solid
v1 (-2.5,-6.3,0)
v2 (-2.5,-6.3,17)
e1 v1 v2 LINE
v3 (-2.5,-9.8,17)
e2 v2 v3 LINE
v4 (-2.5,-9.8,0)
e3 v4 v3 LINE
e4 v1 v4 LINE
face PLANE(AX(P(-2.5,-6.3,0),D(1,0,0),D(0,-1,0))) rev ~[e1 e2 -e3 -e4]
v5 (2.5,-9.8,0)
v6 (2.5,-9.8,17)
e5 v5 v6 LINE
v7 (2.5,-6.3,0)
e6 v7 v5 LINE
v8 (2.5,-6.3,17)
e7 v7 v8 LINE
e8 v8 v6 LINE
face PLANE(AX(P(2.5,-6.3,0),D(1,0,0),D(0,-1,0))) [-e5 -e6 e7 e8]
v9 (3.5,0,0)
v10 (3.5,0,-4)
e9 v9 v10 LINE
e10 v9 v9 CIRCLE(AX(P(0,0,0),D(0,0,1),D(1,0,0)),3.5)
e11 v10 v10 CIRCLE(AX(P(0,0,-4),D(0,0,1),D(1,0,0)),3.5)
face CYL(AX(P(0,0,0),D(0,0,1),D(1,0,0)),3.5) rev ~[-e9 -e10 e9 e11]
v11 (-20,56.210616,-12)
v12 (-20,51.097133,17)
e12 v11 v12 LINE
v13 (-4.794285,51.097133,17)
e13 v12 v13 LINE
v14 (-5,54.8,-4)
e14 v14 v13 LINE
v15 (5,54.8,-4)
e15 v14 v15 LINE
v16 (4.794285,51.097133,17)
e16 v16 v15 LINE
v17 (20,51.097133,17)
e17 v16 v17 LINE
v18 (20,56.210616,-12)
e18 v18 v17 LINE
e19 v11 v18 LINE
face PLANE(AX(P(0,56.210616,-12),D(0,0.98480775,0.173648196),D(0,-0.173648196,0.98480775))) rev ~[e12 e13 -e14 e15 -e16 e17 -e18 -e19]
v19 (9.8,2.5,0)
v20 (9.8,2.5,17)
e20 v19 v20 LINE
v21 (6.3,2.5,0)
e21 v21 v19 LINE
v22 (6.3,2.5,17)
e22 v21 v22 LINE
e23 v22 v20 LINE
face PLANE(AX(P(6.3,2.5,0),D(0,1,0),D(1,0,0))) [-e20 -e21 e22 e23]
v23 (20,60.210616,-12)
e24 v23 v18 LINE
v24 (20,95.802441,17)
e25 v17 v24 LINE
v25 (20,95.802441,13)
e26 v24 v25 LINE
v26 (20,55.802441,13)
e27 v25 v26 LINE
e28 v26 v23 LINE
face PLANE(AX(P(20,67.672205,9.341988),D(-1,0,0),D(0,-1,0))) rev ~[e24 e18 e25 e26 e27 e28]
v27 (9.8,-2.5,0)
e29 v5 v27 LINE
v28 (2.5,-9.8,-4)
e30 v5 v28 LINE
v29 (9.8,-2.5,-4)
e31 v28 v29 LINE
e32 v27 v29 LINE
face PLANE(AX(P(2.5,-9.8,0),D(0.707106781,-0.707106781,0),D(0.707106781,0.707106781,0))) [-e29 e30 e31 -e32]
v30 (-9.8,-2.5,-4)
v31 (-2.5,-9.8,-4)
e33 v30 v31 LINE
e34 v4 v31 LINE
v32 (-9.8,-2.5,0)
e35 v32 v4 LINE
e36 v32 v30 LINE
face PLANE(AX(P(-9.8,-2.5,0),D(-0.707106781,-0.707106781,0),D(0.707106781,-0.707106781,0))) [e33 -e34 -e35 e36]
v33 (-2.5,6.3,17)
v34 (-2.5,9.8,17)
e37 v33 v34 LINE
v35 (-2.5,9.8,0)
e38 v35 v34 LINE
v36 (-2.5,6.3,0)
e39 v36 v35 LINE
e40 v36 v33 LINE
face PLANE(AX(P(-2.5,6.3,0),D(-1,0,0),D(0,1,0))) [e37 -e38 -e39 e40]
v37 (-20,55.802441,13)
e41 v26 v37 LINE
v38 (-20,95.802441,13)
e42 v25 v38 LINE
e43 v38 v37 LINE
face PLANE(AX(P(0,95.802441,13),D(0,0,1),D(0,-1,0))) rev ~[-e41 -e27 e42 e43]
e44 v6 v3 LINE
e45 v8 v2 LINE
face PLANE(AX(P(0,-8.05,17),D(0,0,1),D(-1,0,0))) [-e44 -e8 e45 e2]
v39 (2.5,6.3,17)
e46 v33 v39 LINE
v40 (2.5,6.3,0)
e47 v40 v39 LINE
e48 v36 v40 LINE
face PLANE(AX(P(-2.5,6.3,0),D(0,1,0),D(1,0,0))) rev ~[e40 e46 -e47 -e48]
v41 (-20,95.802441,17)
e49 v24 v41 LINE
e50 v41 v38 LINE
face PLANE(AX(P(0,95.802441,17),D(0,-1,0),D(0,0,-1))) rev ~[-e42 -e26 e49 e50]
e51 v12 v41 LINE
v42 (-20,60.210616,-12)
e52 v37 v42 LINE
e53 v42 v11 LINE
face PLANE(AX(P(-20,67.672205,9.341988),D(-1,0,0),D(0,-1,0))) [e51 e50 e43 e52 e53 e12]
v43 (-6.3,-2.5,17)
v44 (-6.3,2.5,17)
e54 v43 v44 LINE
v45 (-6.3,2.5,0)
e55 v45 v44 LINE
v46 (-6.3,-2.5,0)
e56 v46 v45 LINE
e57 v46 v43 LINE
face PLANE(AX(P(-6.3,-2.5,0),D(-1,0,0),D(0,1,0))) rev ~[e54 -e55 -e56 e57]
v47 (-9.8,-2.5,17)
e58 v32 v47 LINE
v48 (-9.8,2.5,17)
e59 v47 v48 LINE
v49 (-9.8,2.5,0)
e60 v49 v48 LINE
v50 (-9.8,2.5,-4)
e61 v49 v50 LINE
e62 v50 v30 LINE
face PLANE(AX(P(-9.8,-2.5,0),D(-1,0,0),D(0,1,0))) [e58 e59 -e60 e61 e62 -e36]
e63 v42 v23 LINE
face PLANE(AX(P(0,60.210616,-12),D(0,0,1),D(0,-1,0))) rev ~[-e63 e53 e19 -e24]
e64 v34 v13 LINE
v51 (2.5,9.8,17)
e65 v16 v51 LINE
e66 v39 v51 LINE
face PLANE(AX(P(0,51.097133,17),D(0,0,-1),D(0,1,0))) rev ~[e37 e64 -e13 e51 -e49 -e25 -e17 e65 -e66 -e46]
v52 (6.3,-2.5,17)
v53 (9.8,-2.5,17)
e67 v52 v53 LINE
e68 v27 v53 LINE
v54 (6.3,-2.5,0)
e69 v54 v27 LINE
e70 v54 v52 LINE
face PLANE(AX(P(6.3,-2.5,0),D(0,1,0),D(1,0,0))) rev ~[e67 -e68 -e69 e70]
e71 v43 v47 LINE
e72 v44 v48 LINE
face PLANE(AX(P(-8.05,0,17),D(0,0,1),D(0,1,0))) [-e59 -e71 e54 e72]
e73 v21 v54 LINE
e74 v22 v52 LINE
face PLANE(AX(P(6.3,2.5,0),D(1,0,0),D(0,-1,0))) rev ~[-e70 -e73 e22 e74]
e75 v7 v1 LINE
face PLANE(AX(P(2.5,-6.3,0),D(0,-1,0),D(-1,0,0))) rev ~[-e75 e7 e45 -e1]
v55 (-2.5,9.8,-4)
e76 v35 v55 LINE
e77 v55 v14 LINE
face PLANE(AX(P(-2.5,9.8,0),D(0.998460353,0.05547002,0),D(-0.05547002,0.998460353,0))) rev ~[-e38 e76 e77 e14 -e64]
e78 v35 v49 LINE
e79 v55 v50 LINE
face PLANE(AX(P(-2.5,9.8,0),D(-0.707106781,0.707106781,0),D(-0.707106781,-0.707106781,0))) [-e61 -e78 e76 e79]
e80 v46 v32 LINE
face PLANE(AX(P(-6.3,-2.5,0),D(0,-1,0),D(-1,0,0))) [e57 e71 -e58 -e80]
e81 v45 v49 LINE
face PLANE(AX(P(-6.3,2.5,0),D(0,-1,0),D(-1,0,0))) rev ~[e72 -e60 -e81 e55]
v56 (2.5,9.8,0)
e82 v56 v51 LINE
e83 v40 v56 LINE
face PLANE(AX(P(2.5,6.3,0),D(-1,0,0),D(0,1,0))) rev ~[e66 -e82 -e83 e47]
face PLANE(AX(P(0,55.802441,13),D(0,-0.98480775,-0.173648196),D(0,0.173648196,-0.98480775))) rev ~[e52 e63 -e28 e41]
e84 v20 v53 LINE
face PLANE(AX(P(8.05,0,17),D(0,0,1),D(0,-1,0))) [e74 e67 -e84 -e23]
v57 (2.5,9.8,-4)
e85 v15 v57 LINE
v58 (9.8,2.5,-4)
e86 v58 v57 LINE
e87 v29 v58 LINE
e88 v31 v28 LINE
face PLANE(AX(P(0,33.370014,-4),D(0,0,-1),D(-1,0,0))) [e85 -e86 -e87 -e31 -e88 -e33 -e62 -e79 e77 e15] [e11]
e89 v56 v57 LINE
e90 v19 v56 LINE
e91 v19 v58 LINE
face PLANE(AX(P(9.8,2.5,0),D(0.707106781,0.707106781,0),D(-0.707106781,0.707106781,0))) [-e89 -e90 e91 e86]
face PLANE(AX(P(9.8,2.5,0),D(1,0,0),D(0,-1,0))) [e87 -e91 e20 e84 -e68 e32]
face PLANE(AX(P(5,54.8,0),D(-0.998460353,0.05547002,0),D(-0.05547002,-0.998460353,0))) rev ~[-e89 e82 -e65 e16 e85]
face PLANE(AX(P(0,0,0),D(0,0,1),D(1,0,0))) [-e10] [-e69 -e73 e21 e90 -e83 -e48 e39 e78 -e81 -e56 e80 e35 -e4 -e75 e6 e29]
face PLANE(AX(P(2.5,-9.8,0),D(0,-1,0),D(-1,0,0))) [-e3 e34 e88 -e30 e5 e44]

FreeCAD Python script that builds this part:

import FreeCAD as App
import Part
import Sketcher
from FreeCAD import Vector
Q = App.Units.Quantity

doc = App.newDocument("Part")
body = doc.addObject("PartDesign::Body", "Body")

# Sketch on XY plane
sketch1 = body.newObject("Sketcher::SketchObject", "Sketch")
sketch1.AttachmentSupport = (doc.getObject("XY_Plane"), [""])
sketch1.MapMode = "FlatFace"
sketch1.addGeometry([
    Part.LineSegment(Vector(-9.8, 2.5, 0), Vector(-9.8, -2.5, 0)),  # 0
    Part.LineSegment(Vector(-9.8, -2.5, 0), Vector(-2.5, -9.8, 0)),  # 1
    Part.LineSegment(Vector(-2.5, -9.8, 0), Vector(2.5, -9.8, 0)),  # 2
    Part.LineSegment(Vector(2.5, -9.8, 0), Vector(9.8, -2.5, 0)),  # 3
    Part.LineSegment(Vector(9.8, -2.5, 0), Vector(9.8, 2.5, 0)),  # 4
    Part.LineSegment(Vector(9.8, 2.5, 0), Vector(2.5, 9.8, 0)),  # 5
    Part.LineSegment(Vector(2.5, 9.8, 0), Vector(-2.5, 9.8, 0)),  # 6
    Part.LineSegment(Vector(-2.5, 9.8, 0), Vector(-9.8, 2.5, 0)),  # 7
    Part.Circle(Vector(0, 0, 0), Vector(0, 0, 1), 3.5),  # 8
], False)
sketch1.addConstraint([
    Sketcher.Constraint("Coincident", 0, 2, 1, 1),
    Sketcher.Constraint("Coincident", 1, 2, 2, 1),
    Sketcher.Constraint("Coincident", 2, 2, 3, 1),
    Sketcher.Constraint("Coincident", 3, 2, 4, 1),
    Sketcher.Constraint("Coincident", 4, 2, 5, 1),
    Sketcher.Constraint("Coincident", 5, 2, 6, 1),
    Sketcher.Constraint("Coincident", 6, 2, 7, 1),
    Sketcher.Constraint("Coincident", 7, 2, 0, 1),
    Sketcher.Constraint("Vertical", 0),
    Sketcher.Constraint("Horizontal", 2),
    Sketcher.Constraint("Vertical", 4),
    Sketcher.Constraint("Horizontal", 6),
    Sketcher.Constraint("Coincident", 8, 3, -1, 1),
    Sketcher.Constraint("Symmetric", 0, 2, 4, 2, -1, 1),
    Sketcher.Constraint("Symmetric", 1, 2, 5, 2, -1, 1),
    Sketcher.Constraint("Perpendicular", 1, 3),
    Sketcher.Constraint("Perpendicular", 5, 7),
    Sketcher.Constraint("Horizontal", 0, 2, 3, 2),
    Sketcher.Constraint("Horizontal", 4, 2, 7, 2),
    Sketcher.Constraint("Vertical", 2, 2, 5, 2),
    Sketcher.Constraint("Equal", 6, 0),
    Sketcher.Constraint("Diameter", 8, 7.0),
    Sketcher.Constraint("DistanceX", 2, 1, 2, 2, 5.0),
    Sketcher.Constraint("DistanceX", 0, 2, -1, 1, 9.8),
])
pad1 = body.newObject("PartDesign::Pad", "Pad")
pad1.Profile = sketch1
pad1.Length = 4
pad1.Reversed = True

# Sketch on XY plane
sketch2 = body.newObject("Sketcher::SketchObject", "Sketch001")
sketch2.AttachmentSupport = (doc.getObject("XY_Plane"), [""])
sketch2.MapMode = "FlatFace"
sketch2.addGeometry([
    Part.LineSegment(Vector(-2.5, 9.8, 0), Vector(-2.5, 6.3, 0)),
    Part.LineSegment(Vector(-2.5, 6.3, 0), Vector(2.5, 6.3, 0)),
    Part.LineSegment(Vector(2.5, 6.3, 0), Vector(2.5, 9.8, 0)),
    Part.LineSegment(Vector(2.5, 9.8, 0), Vector(-2.5, 9.8, 0)),
], False)
sketch2.addConstraint([
    Sketcher.Constraint("Coincident", 0, 2, 1, 1),
    Sketcher.Constraint("Coincident", 1, 2, 2, 1),
    Sketcher.Constraint("Coincident", 2, 2, 3, 1),
    Sketcher.Constraint("Coincident", 3, 2, 0, 1),
    Sketcher.Constraint("Vertical", 0),
    Sketcher.Constraint("Horizontal", 1),
    Sketcher.Constraint("Vertical", 2),
    Sketcher.Constraint("Horizontal", 3),
    Sketcher.Constraint("DistanceX", 1, 1, 1, 2, 5.0),
    Sketcher.Constraint("DistanceY", 0, 2, 0, 1, 3.5),
    Sketcher.Constraint("DistanceX", 0, 2, -1, 1, 2.5),
    Sketcher.Constraint("DistanceY", -1, 1, 0, 2, 6.3),
])
pad2 = body.newObject("PartDesign::Pad", "Pad001")
pad2.Profile = sketch2
pad2.Length = 17
doc.recompute()

polarpattern = body.newObject("PartDesign::PolarPattern", "PolarPattern")
polarpattern.Originals = [pad2]
polarpattern.Axis = (doc.getObject("Z_Axis"), [""])
polarpattern.Angle = 360
polarpattern.Occurrences = 4
body.Tip = polarpattern

# Sketch on XY plane
sketch3 = body.newObject("Sketcher::SketchObject", "Sketch002")
sketch3.AttachmentSupport = (doc.getObject("XY_Plane"), [""])
sketch3.MapMode = "FlatFace"
sketch3.addGeometry([
    Part.LineSegment(Vector(-5, 55, 0), Vector(-2, 10, 0)),
    Part.LineSegment(Vector(-2, 10, 0), Vector(2, 10, 0)),
    Part.LineSegment(Vector(2, 10, 0), Vector(5, 55, 0)),
    Part.LineSegment(Vector(5, 55, 0), Vector(-5, 55, 0)),
], False)
sketch3.addConstraint([
    Sketcher.Constraint("Coincident", 0, 2, 1, 1),
    Sketcher.Constraint("Coincident", 1, 2, 2, 1),
    Sketcher.Constraint("Coincident", 2, 2, 3, 1),
    Sketcher.Constraint("Coincident", 3, 2, 0, 1),
    Sketcher.Constraint("Horizontal", 1),
    Sketcher.Constraint("Horizontal", 3),
    Sketcher.Constraint("Equal", 0, 2),
    Sketcher.Constraint("DistanceX", 1, 1, 1, 2, 5.0),
    Sketcher.Constraint("DistanceX", 3, 2, 3, 1, 10.0),
    Sketcher.Constraint("DistanceX", -1, 1, 2, 2, 5.0),
    Sketcher.Constraint("DistanceY", 1, 2, 2, 2, 45.0),
    Sketcher.Constraint("DistanceY", -1, 1, 0, 2, 9.8),
])
pad3 = body.newObject("PartDesign::Pad", "Pad002")
pad3.Profile = sketch3
pad3.Length = 17

# Sketch on XY plane
sketch4 = body.newObject("Sketcher::SketchObject", "Sketch003")
sketch4.AttachmentSupport = (doc.getObject("XY_Plane"), [""])
sketch4.MapMode = "FlatFace"
sketch4.addGeometry([
    Part.LineSegment(Vector(-5, 55, 0), Vector(-2, 10, 0)),
    Part.LineSegment(Vector(-2, 10, 0), Vector(2, 10, 0)),
    Part.LineSegment(Vector(2, 10, 0), Vector(5, 55, 0)),
    Part.LineSegment(Vector(5, 55, 0), Vector(-5, 55, 0)),
], False)
sketch4.addConstraint([
    Sketcher.Constraint("Coincident", 0, 2, 1, 1),
    Sketcher.Constraint("Coincident", 1, 2, 2, 1),
    Sketcher.Constraint("Coincident", 2, 2, 3, 1),
    Sketcher.Constraint("Coincident", 3, 2, 0, 1),
    Sketcher.Constraint("Horizontal", 1),
    Sketcher.Constraint("Horizontal", 3),
    Sketcher.Constraint("Equal", 0, 2),
    Sketcher.Constraint("DistanceX", 1, 1, 1, 2, 5.0),
    Sketcher.Constraint("DistanceX", 3, 2, 3, 1, 10.0),
    Sketcher.Constraint("DistanceX", -1, 1, 2, 2, 5.0),
    Sketcher.Constraint("DistanceY", 1, 2, 2, 2, 45.0),
    Sketcher.Constraint("DistanceY", -1, 1, 0, 2, 9.8),
])
pad4 = body.newObject("PartDesign::Pad", "Pad003")
pad4.Profile = sketch4
pad4.Length = 4
pad4.Reversed = True

# Sketch on YZ plane
sketch5 = body.newObject("Sketcher::SketchObject", "Sketch004")
sketch5.AttachmentSupport = (doc.getObject("YZ_Plane"), [""])
sketch5.MapMode = "FlatFace"
sketch5.addGeometry([
    Part.LineSegment(Vector(95.8, 17, 0), Vector(51.1, 17, 0)),  # 0
    Part.LineSegment(Vector(51.1, 17, 0), Vector(56.2, -12, 0)),  # 1
    Part.LineSegment(Vector(56.2, -12, 0), Vector(60.2, -12, 0)),  # 2
    Part.LineSegment(Vector(60.2, -12, 0), Vector(55.8, 13, 0)),  # 3
    Part.LineSegment(Vector(55.8, 13, 0), Vector(95.8, 13, 0)),  # 4
    Part.LineSegment(Vector(95.8, 13, 0), Vector(95.8, 17, 0)),  # 5
], False)
sketch5.addConstraint([
    Sketcher.Constraint("Coincident", 0, 2, 1, 1),
    Sketcher.Constraint("Coincident", 1, 2, 2, 1),
    Sketcher.Constraint("Coincident", 2, 2, 3, 1),
    Sketcher.Constraint("Coincident", 3, 2, 4, 1),
    Sketcher.Constraint("Coincident", 4, 2, 5, 1),
    Sketcher.Constraint("Coincident", 5, 2, 0, 1),
    Sketcher.Constraint("Horizontal", 0),
    Sketcher.Constraint("Horizontal", 2),
    Sketcher.Constraint("Horizontal", 4),
    Sketcher.Constraint("Vertical", 5),
    Sketcher.Constraint("Parallel", 1, 3),
    Sketcher.Constraint("Equal", 2, 5),
    Sketcher.Constraint("DistanceX", 2, 1, 2, 2, 4.0),
    Sketcher.Constraint("DistanceX", 4, 1, 4, 2, 40.0),
    Sketcher.Constraint("Angle", 1, Q("-79.999999 deg")),
    Sketcher.Constraint("DistanceY", -1, 1, 0, 2, 17.0),
    Sketcher.Constraint("DistanceY", 1, 2, -1, 1, 12.0),
    Sketcher.Constraint("DistanceX", -1, 1, 3, 2, 55.802441),
])
pad5 = body.newObject("PartDesign::Pad", "Pad004")
pad5.Profile = sketch5
pad5.Length = 40
pad5.Midplane = True

doc.recompute()
